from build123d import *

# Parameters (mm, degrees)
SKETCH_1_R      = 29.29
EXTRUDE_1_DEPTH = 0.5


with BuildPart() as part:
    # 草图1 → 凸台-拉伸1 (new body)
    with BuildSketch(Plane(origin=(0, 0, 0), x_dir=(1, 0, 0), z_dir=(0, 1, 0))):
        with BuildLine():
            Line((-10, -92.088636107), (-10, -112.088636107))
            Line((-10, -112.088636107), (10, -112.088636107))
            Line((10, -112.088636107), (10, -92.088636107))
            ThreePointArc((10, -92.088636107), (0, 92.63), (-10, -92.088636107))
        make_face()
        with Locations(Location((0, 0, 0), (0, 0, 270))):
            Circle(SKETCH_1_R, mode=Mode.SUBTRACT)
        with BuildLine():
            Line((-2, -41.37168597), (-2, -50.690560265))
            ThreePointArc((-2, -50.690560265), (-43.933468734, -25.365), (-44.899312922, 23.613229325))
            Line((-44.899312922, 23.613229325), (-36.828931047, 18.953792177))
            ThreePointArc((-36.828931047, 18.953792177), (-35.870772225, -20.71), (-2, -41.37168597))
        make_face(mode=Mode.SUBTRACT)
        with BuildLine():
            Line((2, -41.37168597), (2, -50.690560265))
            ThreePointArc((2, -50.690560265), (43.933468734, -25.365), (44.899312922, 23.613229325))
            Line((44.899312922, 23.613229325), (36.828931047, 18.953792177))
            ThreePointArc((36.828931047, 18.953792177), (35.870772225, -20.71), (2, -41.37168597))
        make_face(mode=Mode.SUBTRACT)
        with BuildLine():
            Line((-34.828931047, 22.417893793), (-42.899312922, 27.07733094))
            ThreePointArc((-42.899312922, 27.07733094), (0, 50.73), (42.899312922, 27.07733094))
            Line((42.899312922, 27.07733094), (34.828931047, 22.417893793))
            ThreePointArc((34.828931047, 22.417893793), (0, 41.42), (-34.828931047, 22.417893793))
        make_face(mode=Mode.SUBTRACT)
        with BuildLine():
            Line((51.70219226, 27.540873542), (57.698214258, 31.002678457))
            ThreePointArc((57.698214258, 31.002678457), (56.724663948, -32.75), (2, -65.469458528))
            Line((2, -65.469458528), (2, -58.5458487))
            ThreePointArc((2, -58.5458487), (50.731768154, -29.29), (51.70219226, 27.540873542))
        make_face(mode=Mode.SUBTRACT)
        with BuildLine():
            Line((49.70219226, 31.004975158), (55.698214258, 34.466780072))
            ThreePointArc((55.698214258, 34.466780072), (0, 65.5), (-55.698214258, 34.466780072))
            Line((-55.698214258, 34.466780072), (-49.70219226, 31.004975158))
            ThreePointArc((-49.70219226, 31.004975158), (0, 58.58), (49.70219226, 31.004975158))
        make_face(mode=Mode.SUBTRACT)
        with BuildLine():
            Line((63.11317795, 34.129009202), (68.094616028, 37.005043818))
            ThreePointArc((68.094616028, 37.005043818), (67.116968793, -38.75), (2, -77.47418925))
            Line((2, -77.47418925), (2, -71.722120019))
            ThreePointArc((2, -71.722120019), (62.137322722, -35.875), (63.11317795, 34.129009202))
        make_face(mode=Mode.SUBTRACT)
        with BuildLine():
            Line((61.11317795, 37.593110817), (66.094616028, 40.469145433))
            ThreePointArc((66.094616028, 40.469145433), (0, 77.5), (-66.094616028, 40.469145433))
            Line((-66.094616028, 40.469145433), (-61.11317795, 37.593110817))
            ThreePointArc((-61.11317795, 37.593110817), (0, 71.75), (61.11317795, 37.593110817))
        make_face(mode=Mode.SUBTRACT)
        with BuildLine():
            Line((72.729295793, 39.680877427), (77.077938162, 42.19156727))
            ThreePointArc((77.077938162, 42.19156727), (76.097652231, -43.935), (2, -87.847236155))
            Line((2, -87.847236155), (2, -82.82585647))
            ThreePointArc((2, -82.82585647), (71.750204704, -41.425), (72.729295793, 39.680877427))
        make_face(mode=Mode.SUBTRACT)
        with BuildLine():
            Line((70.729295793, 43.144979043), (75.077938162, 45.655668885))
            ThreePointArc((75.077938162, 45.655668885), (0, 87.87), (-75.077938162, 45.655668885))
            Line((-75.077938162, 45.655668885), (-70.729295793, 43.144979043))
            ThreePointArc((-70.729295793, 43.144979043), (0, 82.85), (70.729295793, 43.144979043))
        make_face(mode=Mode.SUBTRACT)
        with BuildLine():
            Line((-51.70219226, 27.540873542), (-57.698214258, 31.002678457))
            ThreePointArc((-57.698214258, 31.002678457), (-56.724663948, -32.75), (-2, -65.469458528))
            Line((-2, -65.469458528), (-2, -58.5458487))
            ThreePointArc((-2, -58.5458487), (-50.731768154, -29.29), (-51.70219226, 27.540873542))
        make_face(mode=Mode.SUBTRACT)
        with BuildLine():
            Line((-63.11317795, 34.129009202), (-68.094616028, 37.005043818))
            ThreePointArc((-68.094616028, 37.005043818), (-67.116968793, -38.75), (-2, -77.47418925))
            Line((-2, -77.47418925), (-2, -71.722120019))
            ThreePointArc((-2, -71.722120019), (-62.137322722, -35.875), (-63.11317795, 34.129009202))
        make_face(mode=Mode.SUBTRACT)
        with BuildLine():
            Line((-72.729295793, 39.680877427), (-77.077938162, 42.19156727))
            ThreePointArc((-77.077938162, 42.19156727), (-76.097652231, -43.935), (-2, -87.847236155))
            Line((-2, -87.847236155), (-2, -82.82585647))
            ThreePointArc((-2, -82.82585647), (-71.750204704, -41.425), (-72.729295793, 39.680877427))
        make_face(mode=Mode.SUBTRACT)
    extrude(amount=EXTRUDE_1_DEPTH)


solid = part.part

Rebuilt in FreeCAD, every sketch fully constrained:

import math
import FreeCAD as App
import Part
import Sketcher
Q = App.Units.Quantity

doc = App.newDocument("Part")
body = doc.addObject("PartDesign::Body", "Body")

# Sketch on XZ plane
sketch1 = body.newObject("Sketcher::SketchObject", "Sketch")
sketch1.AttachmentSupport = (doc.getObject("XZ_Plane"), [""])
sketch1.MapMode = "FlatFace"
sketch1.addGeometry([
    Part.LineSegment(App.Vector(-10, 92.088636, 0), App.Vector(-10, 112.088636, 0)),  # 0
    Part.LineSegment(App.Vector(-10, 112.088636, 0), App.Vector(10, 112.088636, 0)),  # 1
    Part.LineSegment(App.Vector(10, 112.088636, 0), App.Vector(10, 92.088636, 0)),  # 2
    Part.ArcOfCircle(Part.Circle(App.Vector(0, 0, 0), App.Vector(0, 0, 1), 92.63), math.radians(96.197524), math.radians(443.802476)),  # 3
    Part.LineSegment(App.Vector(-77.077938, -42.191567, 0), App.Vector(-72.729296, -39.680877, 0)),  # 4
    Part.ArcOfCircle(Part.Circle(App.Vector(0, 0, 0), App.Vector(0, 0, 1), 82.85), math.radians(91.383255), math.radians(208.616745)),  # 5
    Part.LineSegment(App.Vector(-2, 82.825856, 0), App.Vector(-2, 87.847236, 0)),  # 6
    Part.ArcOfCircle(Part.Circle(App.Vector(0, 0, 0), App.Vector(0, 0, 1), 87.87), math.radians(91.304216), math.radians(208.695784)),  # 7
    Part.LineSegment(App.Vector(-68.094616, -37.005044, 0), App.Vector(-63.113178, -34.129009, 0)),  # 8
    Part.ArcOfCircle(Part.Circle(App.Vector(0, 0, 0), App.Vector(0, 0, 1), 71.75), math.radians(91.597302), math.radians(208.402698)),  # 9
    Part.LineSegment(App.Vector(-2, 71.72212, 0), App.Vector(-2, 77.474189, 0)),  # 10
    Part.ArcOfCircle(Part.Circle(App.Vector(0, 0, 0), App.Vector(0, 0, 1), 77.5), math.radians(91.478765), math.radians(208.521235)),  # 11
    Part.LineSegment(App.Vector(-57.698214, -31.002678, 0), App.Vector(-51.702192, -27.540874, 0)),  # 12
    Part.ArcOfCircle(Part.Circle(App.Vector(0, 0, 0), App.Vector(0, 0, 1), 58.58), math.radians(91.956535), math.radians(208.043465)),  # 13
    Part.LineSegment(App.Vector(-2, 58.545849, 0), App.Vector(-2, 65.469459, 0)),  # 14
    Part.ArcOfCircle(Part.Circle(App.Vector(0, 0, 0), App.Vector(0, 0, 1), 65.5), math.radians(91.749761), math.radians(208.250239)),  # 15
    Part.ArcOfCircle(Part.Circle(App.Vector(0, 0, 0), App.Vector(0, 0, 1), 41.42), math.radians(92.767652), math.radians(207.232348)),  # 16
    Part.LineSegment(App.Vector(-2, 41.371686, 0), App.Vector(-2, 50.69056, 0)),  # 17
    Part.ArcOfCircle(Part.Circle(App.Vector(0, 0, 0), App.Vector(0, 0, 1), 50.73), math.radians(92.259438), math.radians(207.740562)),  # 18
    Part.LineSegment(App.Vector(-44.899313, -23.613229, 0), App.Vector(-36.828931, -18.953792, 0)),  # 19
    Part.Circle(App.Vector(0, 0, 0), App.Vector(0, 0, 1), 29.29),  # 20
    Part.LineSegment(App.Vector(2, 50.69056, 0), App.Vector(2, 41.371686, 0)),  # 21
    Part.ArcOfCircle(Part.Circle(App.Vector(0, 0, 0), App.Vector(0, 0, 1), 41.42), math.radians(-27.232348), math.radians(87.232348)),  # 22
    Part.LineSegment(App.Vector(36.828931, -18.953792, 0), App.Vector(44.899313, -23.613229, 0)),  # 23
    Part.ArcOfCircle(Part.Circle(App.Vector(0, 0, 0), App.Vector(0, 0, 1), 50.73), math.radians(-27.740562), math.radians(87.740562)),  # 24
    Part.ArcOfCircle(Part.Circle(App.Vector(0, 0, 0), App.Vector(0, 0, 1), 58.58), math.radians(-28.043465), math.radians(88.043465)),  # 25
    Part.LineSegment(App.Vector(51.702192, -27.540874, 0), App.Vector(57.698214, -31.002678, 0)),  # 26
    Part.ArcOfCircle(Part.Circle(App.Vector(0, 0, 0), App.Vector(0, 0, 1), 65.5), math.radians(-28.250239), math.radians(88.250239)),  # 27
    Part.LineSegment(App.Vector(2, 65.469459, 0), App.Vector(2, 58.545849, 0)),  # 28
    Part.ArcOfCircle(Part.Circle(App.Vector(0, 0, 0), App.Vector(0, 0, 1), 71.75), math.radians(-28.402698), math.radians(88.402698)),  # 29
    Part.LineSegment(App.Vector(63.113178, -34.129009, 0), App.Vector(68.094616, -37.005044, 0)),  # 30
    Part.ArcOfCircle(Part.Circle(App.Vector(0, 0, 0), App.Vector(0, 0, 1), 77.5), math.radians(-28.521235), math.radians(88.521235)),  # 31
    Part.LineSegment(App.Vector(2, 77.474189, 0), App.Vector(2, 71.72212, 0)),  # 32
    Part.ArcOfCircle(Part.Circle(App.Vector(0, 0, 0), App.Vector(0, 0, 1), 82.85), math.radians(-28.616745), math.radians(88.616745)),  # 33
    Part.LineSegment(App.Vector(72.729296, -39.680877, 0), App.Vector(77.077938, -42.191567, 0)),  # 34
    Part.ArcOfCircle(Part.Circle(App.Vector(0, 0, 0), App.Vector(0, 0, 1), 87.87), math.radians(-28.695784), math.radians(88.695784)),  # 35
    Part.LineSegment(App.Vector(2, 87.847236, 0), App.Vector(2, 82.825856, 0)),  # 36
    Part.ArcOfCircle(Part.Circle(App.Vector(0, 0, 0), App.Vector(0, 0, 1), 41.42), math.radians(-147.232348), math.radians(-32.767652)),  # 37
    Part.LineSegment(App.Vector(-34.828931, -22.417894, 0), App.Vector(-42.899313, -27.077331, 0)),  # 38
    Part.ArcOfCircle(Part.Circle(App.Vector(0, 0, 0), App.Vector(0, 0, 1), 50.73), math.radians(-147.740562), math.radians(-32.259438)),  # 39
    Part.LineSegment(App.Vector(42.899313, -27.077331, 0), App.Vector(34.828931, -22.417894, 0)),  # 40
    Part.LineSegment(App.Vector(55.698214, -34.46678, 0), App.Vector(49.702192, -31.004975, 0)),  # 41
    Part.ArcOfCircle(Part.Circle(App.Vector(0, 0, 0), App.Vector(0, 0, 1), 58.58), math.radians(-148.043465), math.radians(-31.956535)),  # 42
    Part.LineSegment(App.Vector(-49.702192, -31.004975, 0), App.Vector(-55.698214, -34.46678, 0)),  # 43
    Part.ArcOfCircle(Part.Circle(App.Vector(0, 0, 0), App.Vector(0, 0, 1), 65.5), math.radians(-148.250239), math.radians(-31.749761)),  # 44
    Part.LineSegment(App.Vector(66.094616, -40.469145, 0), App.Vector(61.113178, -37.593111, 0)),  # 45
    Part.ArcOfCircle(Part.Circle(App.Vector(0, 0, 0), App.Vector(0, 0, 1), 71.75), math.radians(-148.402698), math.radians(-31.597302)),  # 46
    Part.LineSegment(App.Vector(-61.113178, -37.593111, 0), App.Vector(-66.094616, -40.469145, 0)),  # 47
    Part.ArcOfCircle(Part.Circle(App.Vector(0, 0, 0), App.Vector(0, 0, 1), 77.5), math.radians(-148.521235), math.radians(-31.478765)),  # 48
    Part.LineSegment(App.Vector(75.077938, -45.655669, 0), App.Vector(70.729296, -43.144979, 0)),  # 49
    Part.ArcOfCircle(Part.Circle(App.Vector(0, 0, 0), App.Vector(0, 0, 1), 82.85), math.radians(-148.616745), math.radians(-31.383255)),  # 50
    Part.LineSegment(App.Vector(-70.729296, -43.144979, 0), App.Vector(-75.077938, -45.655669, 0)),  # 51
    Part.ArcOfCircle(Part.Circle(App.Vector(0, 0, 0), App.Vector(0, 0, 1), 87.87), math.radians(-148.695784), math.radians(-31.304216)),  # 52
], False)
sketch1.addConstraint([
    Sketcher.Constraint("Coincident", 0, 2, 1, 1),
    Sketcher.Constraint("Coincident", 1, 2, 2, 1),
    Sketcher.Constraint("Coincident", 2, 2, 3, 2),
    Sketcher.Constraint("Coincident", 3, 1, 0, 1),
    Sketcher.Constraint("Coincident", 4, 2, 5, 2),
    Sketcher.Constraint("Coincident", 5, 1, 6, 1),
    Sketcher.Constraint("Coincident", 6, 2, 7, 1),
    Sketcher.Constraint("Coincident", 7, 2, 4, 1),
    Sketcher.Constraint("Coincident", 8, 2, 9, 2),
    Sketcher.Constraint("Coincident", 9, 1, 10, 1),
    Sketcher.Constraint("Coincident", 10, 2, 11, 1),
    Sketcher.Constraint("Coincident", 11, 2, 8, 1),
    Sketcher.Constraint("Coincident", 12, 2, 13, 2),
    Sketcher.Constraint("Coincident", 13, 1, 14, 1),
    Sketcher.Constraint("Coincident", 14, 2, 15, 1),
    Sketcher.Constraint("Coincident", 15, 2, 12, 1),
    Sketcher.Constraint("Coincident", 16, 1, 17, 1),
    Sketcher.Constraint("Coincident", 17, 2, 18, 1),
    Sketcher.Constraint("Coincident", 18, 2, 19, 1),
    Sketcher.Constraint("Coincident", 19, 2, 16, 2),
    Sketcher.Constraint("Coincident", 21, 2, 22, 2),
    Sketcher.Constraint("Coincident", 22, 1, 23, 1),
    Sketcher.Constraint("Coincident", 23, 2, 24, 1),
    Sketcher.Constraint("Coincident", 24, 2, 21, 1),
    Sketcher.Constraint("Coincident", 25, 1, 26, 1),
    Sketcher.Constraint("Coincident", 26, 2, 27, 1),
    Sketcher.Constraint("Coincident", 27, 2, 28, 1),
    Sketcher.Constraint("Coincident", 28, 2, 25, 2),
    Sketcher.Constraint("Coincident", 29, 1, 30, 1),
    Sketcher.Constraint("Coincident", 30, 2, 31, 1),
    Sketcher.Constraint("Coincident", 31, 2, 32, 1),
    Sketcher.Constraint("Coincident", 32, 2, 29, 2),
    Sketcher.Constraint("Coincident", 33, 1, 34, 1),
    Sketcher.Constraint("Coincident", 34, 2, 35, 1),
    Sketcher.Constraint("Coincident", 35, 2, 36, 1),
    Sketcher.Constraint("Coincident", 36, 2, 33, 2),
    Sketcher.Constraint("Coincident", 37, 1, 38, 1),
    Sketcher.Constraint("Coincident", 38, 2, 39, 1),
    Sketcher.Constraint("Coincident", 39, 2, 40, 1),
    Sketcher.Constraint("Coincident", 40, 2, 37, 2),
    Sketcher.Constraint("Coincident", 41, 2, 42, 2),
    Sketcher.Constraint("Coincident", 42, 1, 43, 1),
    Sketcher.Constraint("Coincident", 43, 2, 44, 1),
    Sketcher.Constraint("Coincident", 44, 2, 41, 1),
    Sketcher.Constraint("Coincident", 45, 2, 46, 2),
    Sketcher.Constraint("Coincident", 46, 1, 47, 1),
    Sketcher.Constraint("Coincident", 47, 2, 48, 1),
    Sketcher.Constraint("Coincident", 48, 2, 45, 1),
    Sketcher.Constraint("Coincident", 49, 2, 50, 2),
    Sketcher.Constraint("Coincident", 50, 1, 51, 1),
    Sketcher.Constraint("Coincident", 51, 2, 52, 1),
    Sketcher.Constraint("Coincident", 52, 2, 49, 1),
    Sketcher.Constraint("Vertical", 0),
    Sketcher.Constraint("Horizontal", 1),
    Sketcher.Constraint("Vertical", 2),
    Sketcher.Constraint("Vertical", 6),
    Sketcher.Constraint("Vertical", 10),
    Sketcher.Constraint("Vertical", 14),
    Sketcher.Constraint("Vertical", 17),
    Sketcher.Constraint("Vertical", 21),
    Sketcher.Constraint("Vertical", 28),
    Sketcher.Constraint("Vertical", 32),
    Sketcher.Constraint("Vertical", 36),
    Sketcher.Constraint("Coincident", 3, 3, -1, 1),
    Sketcher.Constraint("Coincident", 5, 3, -1, 1),
    Sketcher.Constraint("Coincident", 7, 3, -1, 1),
    Sketcher.Constraint("Coincident", 9, 3, -1, 1),
    Sketcher.Constraint("Coincident", 11, 3, -1, 1),
    Sketcher.Constraint("Coincident", 13, 3, -1, 1),
    Sketcher.Constraint("Coincident", 15, 3, -1, 1),
    Sketcher.Constraint("Coincident", 16, 3, -1, 1),
    Sketcher.Constraint("Coincident", 18, 3, -1, 1),
    Sketcher.Constraint("Coincident", 20, 3, -1, 1),
    Sketcher.Constraint("Coincident", 22, 3, -1, 1),
    Sketcher.Constraint("Coincident", 24, 3, -1, 1),
    Sketcher.Constraint("Coincident", 25, 3, -1, 1),
    Sketcher.Constraint("Coincident", 27, 3, -1, 1),
    Sketcher.Constraint("Coincident", 29, 3, -1, 1),
    Sketcher.Constraint("Coincident", 31, 3, -1, 1),
    Sketcher.Constraint("Coincident", 33, 3, -1, 1),
    Sketcher.Constraint("Coincident", 35, 3, -1, 1),
    Sketcher.Constraint("Coincident", 37, 3, -1, 1),
    Sketcher.Constraint("Coincident", 39, 3, -1, 1),
    Sketcher.Constraint("Coincident", 42, 3, -1, 1),
    Sketcher.Constraint("Coincident", 44, 3, -1, 1),
    Sketcher.Constraint("Coincident", 46, 3, -1, 1),
    Sketcher.Constraint("Coincident", 48, 3, -1, 1),
    Sketcher.Constraint("Coincident", 50, 3, -1, 1),
    Sketcher.Constraint("Coincident", 52, 3, -1, 1),
    Sketcher.Constraint("Equal", 16, 22),
    Sketcher.Constraint("Equal", 18, 24),
    Sketcher.Constraint("Equal", 13, 25),
    Sketcher.Constraint("Equal", 15, 27),
    Sketcher.Constraint("Equal", 9, 29),
    Sketcher.Constraint("Equal", 11, 31),
    Sketcher.Constraint("Equal", 5, 33),
    Sketcher.Constraint("Equal", 7, 35),
    Sketcher.Constraint("Equal", 22, 37),
    Sketcher.Constraint("Equal", 24, 39),
    Sketcher.Constraint("Equal", 25, 42),
    Sketcher.Constraint("Equal", 27, 44),
    Sketcher.Constraint("Equal", 29, 46),
    Sketcher.Constraint("Equal", 31, 48),
    Sketcher.Constraint("Equal", 33, 50),
    Sketcher.Constraint("Equal", 35, 52),
    Sketcher.Constraint("Parallel", 4, 8),
    Sketcher.Constraint("Parallel", 8, 12),
    Sketcher.Constraint("Parallel", 12, 19),
    Sketcher.Constraint("Parallel", 23, 26),
    Sketcher.Constraint("Parallel", 26, 30),
    Sketcher.Constraint("Parallel", 30, 34),
    Sketcher.Constraint("Parallel", 19, 38),
    Sketcher.Constraint("Parallel", 34, 40),
    Sketcher.Constraint("Parallel", 40, 41),
    Sketcher.Constraint("Parallel", 38, 43),
    Sketcher.Constraint("Parallel", 41, 45),
    Sketcher.Constraint("Parallel", 43, 47),
    Sketcher.Constraint("Parallel", 45, 49),
    Sketcher.Constraint("Parallel", 47, 51),
    Sketcher.Constraint("Horizontal", 2, 2, 3, 1),
    Sketcher.Constraint("Horizontal", 16, 1, 21, 2),
    Sketcher.Constraint("Horizontal", 19, 2, 22, 1),
    Sketcher.Constraint("Horizontal", 18, 2, 23, 2),
    Sketcher.Constraint("Horizontal", 12, 2, 25, 1),
    Sketcher.Constraint("Horizontal", 14, 2, 27, 2),
    Sketcher.Constraint("Horizontal", 8, 2, 29, 1),
    Sketcher.Constraint("Horizontal", 10, 2, 31, 2),
    Sketcher.Constraint("Horizontal", 4, 2, 33, 1),
    Sketcher.Constraint("Horizontal", 6, 2, 35, 2),
    Sketcher.Constraint("Horizontal", 38, 2, 39, 2),
    Sketcher.Constraint("Horizontal", 41, 2, 42, 1),
    Sketcher.Constraint("Horizontal", 45, 2, 46, 1),
    Sketcher.Constraint("Horizontal", 49, 2, 50, 1),
    Sketcher.Constraint("Vertical", 6, 2, 9, 1),
    Sketcher.Constraint("Vertical", 10, 2, 13, 1),
    Sketcher.Constraint("Vertical", 14, 2, 16, 1),
    Sketcher.Constraint("Equal", 1, 0),
    Sketcher.Constraint("Equal", 23, 38),
    Sketcher.Constraint("Equal", 26, 41),
    Sketcher.Constraint("Radius", 11, 77.5),
    Sketcher.Constraint("Radius", 15, 65.5),
    Sketcher.Constraint("Diameter", 20, 58.58),
    Sketcher.Constraint("DistanceX", 1, 1, 1, 2, 20.0),
    Sketcher.Constraint("Angle", 4, Q("30 deg")),
    Sketcher.Constraint("Radius", 3, 92.63),
    Sketcher.Constraint("Radius", 5, 82.85),
    Sketcher.Constraint("Radius", 7, 87.87),
    Sketcher.Constraint("Radius", 9, 71.75),
    Sketcher.Constraint("Radius", 13, 58.58),
    Sketcher.Constraint("Radius", 16, 41.42),
    Sketcher.Constraint("Radius", 18, 50.73),
    Sketcher.Constraint("DistanceX", 5, 1, -1, 1, 2.0),
    Sketcher.Constraint("DistanceX", 7, 2, -1, 1, 77.077938),
    Sketcher.Constraint("DistanceY", 8, 2, -1, 1, 34.129009),
    Sketcher.Constraint("DistanceY", 15, 2, -1, 1, 31.002678),
    Sketcher.Constraint("DistanceY", 18, 2, -1, 1, 23.613229),
    Sketcher.Constraint("DistanceY", 45, 2, -1, 1, 37.593111),
    Sketcher.Constraint("DistanceY", 49, 2, -1, 1, 43.144979),
])
pad1 = body.newObject("PartDesign::Pad", "Pad")
pad1.Profile = sketch1
pad1.Length = 0.5
pad1.Reversed = True

doc.recompute()
